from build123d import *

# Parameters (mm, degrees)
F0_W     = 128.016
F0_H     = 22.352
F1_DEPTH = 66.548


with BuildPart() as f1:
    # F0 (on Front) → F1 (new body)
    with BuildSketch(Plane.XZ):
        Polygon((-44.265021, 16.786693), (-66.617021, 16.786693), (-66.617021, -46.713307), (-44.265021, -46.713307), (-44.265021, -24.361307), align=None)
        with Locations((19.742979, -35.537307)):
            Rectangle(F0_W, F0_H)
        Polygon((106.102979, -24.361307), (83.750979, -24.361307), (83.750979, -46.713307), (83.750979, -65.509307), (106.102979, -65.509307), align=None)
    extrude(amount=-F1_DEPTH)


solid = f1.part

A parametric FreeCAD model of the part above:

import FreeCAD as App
import Part
import Sketcher

V = App.Vector
Q = App.Units.Quantity

doc = App.newDocument("Part")
body = doc.addObject("PartDesign::Body", "Body")

sketch1 = doc.addObject("Sketcher::SketchObject", "Sketch")
body.addObject(sketch1)
sketch1.AttachmentSupport = (doc.XZ_Plane, [""])
sketch1.MapMode = "FlatFace"
sketch1.addGeometry(Part.LineSegment(V(-44, 17, 0), V(-67, 17, 0)), False)
sketch1.addGeometry(Part.LineSegment(V(-67, 17, 0), V(-67, -47, 0)), False)
sketch1.addGeometry(Part.LineSegment(V(-67, -47, 0), V(84, -47, 0)), False)
sketch1.addGeometry(Part.LineSegment(V(84, -47, 0), V(84, -66, 0)), False)
sketch1.addGeometry(Part.LineSegment(V(84, -66, 0), V(106, -66, 0)), False)
sketch1.addGeometry(Part.LineSegment(V(106, -66, 0), V(106, -24, 0)), False)
sketch1.addGeometry(Part.LineSegment(V(106, -24, 0), V(-44, -24, 0)), False)
sketch1.addGeometry(Part.LineSegment(V(-44, -24, 0), V(-44, 17, 0)), False)
sketch1.addConstraint(Sketcher.Constraint("Coincident", 0, 2, 1, 1))
sketch1.addConstraint(Sketcher.Constraint("Coincident", 1, 2, 2, 1))
sketch1.addConstraint(Sketcher.Constraint("Coincident", 2, 2, 3, 1))
sketch1.addConstraint(Sketcher.Constraint("Coincident", 3, 2, 4, 1))
sketch1.addConstraint(Sketcher.Constraint("Coincident", 4, 2, 5, 1))
sketch1.addConstraint(Sketcher.Constraint("Coincident", 5, 2, 6, 1))
sketch1.addConstraint(Sketcher.Constraint("Coincident", 6, 2, 7, 1))
sketch1.addConstraint(Sketcher.Constraint("Coincident", 7, 2, 0, 1))
sketch1.addConstraint(Sketcher.Constraint("Horizontal", 0))
sketch1.addConstraint(Sketcher.Constraint("Vertical", 1))
sketch1.addConstraint(Sketcher.Constraint("Horizontal", 2))
sketch1.addConstraint(Sketcher.Constraint("Vertical", 3))
sketch1.addConstraint(Sketcher.Constraint("Horizontal", 4))
sketch1.addConstraint(Sketcher.Constraint("Vertical", 5))
sketch1.addConstraint(Sketcher.Constraint("Horizontal", 6))
sketch1.addConstraint(Sketcher.Constraint("Vertical", 7))
sketch1.addConstraint(Sketcher.Constraint("Equal", 0, 4))
sketch1.addConstraint(Sketcher.Constraint("Equal", 5, 7))
sketch1.addConstraint(Sketcher.Constraint("DistanceY", 1, 2, 1, 1, Q("2.5 in")))
sketch1.addConstraint(Sketcher.Constraint("DistanceX", 0, 2, 0, 1, Q("0.88 in")))
sketch1.addConstraint(Sketcher.Constraint("DistanceX", 2, 1, 2, 2, Q("5.92 in")))
sketch1.addConstraint(Sketcher.Constraint("DistanceY", 3, 2, 3, 1, Q("0.74 in")))
sketch1.addConstraint(Sketcher.Constraint("DistanceX", 0, 2, -1, 1, 66.617021))
sketch1.addConstraint(Sketcher.Constraint("DistanceY", -1, 1, 0, 2, 16.786693))
pad1 = doc.addObject("PartDesign::Pad", "Pad")
body.addObject(pad1)
pad1.Profile = sketch1
pad1.Length = Q("2.62 in")
pad1.Reversed = True

doc.recompute()
